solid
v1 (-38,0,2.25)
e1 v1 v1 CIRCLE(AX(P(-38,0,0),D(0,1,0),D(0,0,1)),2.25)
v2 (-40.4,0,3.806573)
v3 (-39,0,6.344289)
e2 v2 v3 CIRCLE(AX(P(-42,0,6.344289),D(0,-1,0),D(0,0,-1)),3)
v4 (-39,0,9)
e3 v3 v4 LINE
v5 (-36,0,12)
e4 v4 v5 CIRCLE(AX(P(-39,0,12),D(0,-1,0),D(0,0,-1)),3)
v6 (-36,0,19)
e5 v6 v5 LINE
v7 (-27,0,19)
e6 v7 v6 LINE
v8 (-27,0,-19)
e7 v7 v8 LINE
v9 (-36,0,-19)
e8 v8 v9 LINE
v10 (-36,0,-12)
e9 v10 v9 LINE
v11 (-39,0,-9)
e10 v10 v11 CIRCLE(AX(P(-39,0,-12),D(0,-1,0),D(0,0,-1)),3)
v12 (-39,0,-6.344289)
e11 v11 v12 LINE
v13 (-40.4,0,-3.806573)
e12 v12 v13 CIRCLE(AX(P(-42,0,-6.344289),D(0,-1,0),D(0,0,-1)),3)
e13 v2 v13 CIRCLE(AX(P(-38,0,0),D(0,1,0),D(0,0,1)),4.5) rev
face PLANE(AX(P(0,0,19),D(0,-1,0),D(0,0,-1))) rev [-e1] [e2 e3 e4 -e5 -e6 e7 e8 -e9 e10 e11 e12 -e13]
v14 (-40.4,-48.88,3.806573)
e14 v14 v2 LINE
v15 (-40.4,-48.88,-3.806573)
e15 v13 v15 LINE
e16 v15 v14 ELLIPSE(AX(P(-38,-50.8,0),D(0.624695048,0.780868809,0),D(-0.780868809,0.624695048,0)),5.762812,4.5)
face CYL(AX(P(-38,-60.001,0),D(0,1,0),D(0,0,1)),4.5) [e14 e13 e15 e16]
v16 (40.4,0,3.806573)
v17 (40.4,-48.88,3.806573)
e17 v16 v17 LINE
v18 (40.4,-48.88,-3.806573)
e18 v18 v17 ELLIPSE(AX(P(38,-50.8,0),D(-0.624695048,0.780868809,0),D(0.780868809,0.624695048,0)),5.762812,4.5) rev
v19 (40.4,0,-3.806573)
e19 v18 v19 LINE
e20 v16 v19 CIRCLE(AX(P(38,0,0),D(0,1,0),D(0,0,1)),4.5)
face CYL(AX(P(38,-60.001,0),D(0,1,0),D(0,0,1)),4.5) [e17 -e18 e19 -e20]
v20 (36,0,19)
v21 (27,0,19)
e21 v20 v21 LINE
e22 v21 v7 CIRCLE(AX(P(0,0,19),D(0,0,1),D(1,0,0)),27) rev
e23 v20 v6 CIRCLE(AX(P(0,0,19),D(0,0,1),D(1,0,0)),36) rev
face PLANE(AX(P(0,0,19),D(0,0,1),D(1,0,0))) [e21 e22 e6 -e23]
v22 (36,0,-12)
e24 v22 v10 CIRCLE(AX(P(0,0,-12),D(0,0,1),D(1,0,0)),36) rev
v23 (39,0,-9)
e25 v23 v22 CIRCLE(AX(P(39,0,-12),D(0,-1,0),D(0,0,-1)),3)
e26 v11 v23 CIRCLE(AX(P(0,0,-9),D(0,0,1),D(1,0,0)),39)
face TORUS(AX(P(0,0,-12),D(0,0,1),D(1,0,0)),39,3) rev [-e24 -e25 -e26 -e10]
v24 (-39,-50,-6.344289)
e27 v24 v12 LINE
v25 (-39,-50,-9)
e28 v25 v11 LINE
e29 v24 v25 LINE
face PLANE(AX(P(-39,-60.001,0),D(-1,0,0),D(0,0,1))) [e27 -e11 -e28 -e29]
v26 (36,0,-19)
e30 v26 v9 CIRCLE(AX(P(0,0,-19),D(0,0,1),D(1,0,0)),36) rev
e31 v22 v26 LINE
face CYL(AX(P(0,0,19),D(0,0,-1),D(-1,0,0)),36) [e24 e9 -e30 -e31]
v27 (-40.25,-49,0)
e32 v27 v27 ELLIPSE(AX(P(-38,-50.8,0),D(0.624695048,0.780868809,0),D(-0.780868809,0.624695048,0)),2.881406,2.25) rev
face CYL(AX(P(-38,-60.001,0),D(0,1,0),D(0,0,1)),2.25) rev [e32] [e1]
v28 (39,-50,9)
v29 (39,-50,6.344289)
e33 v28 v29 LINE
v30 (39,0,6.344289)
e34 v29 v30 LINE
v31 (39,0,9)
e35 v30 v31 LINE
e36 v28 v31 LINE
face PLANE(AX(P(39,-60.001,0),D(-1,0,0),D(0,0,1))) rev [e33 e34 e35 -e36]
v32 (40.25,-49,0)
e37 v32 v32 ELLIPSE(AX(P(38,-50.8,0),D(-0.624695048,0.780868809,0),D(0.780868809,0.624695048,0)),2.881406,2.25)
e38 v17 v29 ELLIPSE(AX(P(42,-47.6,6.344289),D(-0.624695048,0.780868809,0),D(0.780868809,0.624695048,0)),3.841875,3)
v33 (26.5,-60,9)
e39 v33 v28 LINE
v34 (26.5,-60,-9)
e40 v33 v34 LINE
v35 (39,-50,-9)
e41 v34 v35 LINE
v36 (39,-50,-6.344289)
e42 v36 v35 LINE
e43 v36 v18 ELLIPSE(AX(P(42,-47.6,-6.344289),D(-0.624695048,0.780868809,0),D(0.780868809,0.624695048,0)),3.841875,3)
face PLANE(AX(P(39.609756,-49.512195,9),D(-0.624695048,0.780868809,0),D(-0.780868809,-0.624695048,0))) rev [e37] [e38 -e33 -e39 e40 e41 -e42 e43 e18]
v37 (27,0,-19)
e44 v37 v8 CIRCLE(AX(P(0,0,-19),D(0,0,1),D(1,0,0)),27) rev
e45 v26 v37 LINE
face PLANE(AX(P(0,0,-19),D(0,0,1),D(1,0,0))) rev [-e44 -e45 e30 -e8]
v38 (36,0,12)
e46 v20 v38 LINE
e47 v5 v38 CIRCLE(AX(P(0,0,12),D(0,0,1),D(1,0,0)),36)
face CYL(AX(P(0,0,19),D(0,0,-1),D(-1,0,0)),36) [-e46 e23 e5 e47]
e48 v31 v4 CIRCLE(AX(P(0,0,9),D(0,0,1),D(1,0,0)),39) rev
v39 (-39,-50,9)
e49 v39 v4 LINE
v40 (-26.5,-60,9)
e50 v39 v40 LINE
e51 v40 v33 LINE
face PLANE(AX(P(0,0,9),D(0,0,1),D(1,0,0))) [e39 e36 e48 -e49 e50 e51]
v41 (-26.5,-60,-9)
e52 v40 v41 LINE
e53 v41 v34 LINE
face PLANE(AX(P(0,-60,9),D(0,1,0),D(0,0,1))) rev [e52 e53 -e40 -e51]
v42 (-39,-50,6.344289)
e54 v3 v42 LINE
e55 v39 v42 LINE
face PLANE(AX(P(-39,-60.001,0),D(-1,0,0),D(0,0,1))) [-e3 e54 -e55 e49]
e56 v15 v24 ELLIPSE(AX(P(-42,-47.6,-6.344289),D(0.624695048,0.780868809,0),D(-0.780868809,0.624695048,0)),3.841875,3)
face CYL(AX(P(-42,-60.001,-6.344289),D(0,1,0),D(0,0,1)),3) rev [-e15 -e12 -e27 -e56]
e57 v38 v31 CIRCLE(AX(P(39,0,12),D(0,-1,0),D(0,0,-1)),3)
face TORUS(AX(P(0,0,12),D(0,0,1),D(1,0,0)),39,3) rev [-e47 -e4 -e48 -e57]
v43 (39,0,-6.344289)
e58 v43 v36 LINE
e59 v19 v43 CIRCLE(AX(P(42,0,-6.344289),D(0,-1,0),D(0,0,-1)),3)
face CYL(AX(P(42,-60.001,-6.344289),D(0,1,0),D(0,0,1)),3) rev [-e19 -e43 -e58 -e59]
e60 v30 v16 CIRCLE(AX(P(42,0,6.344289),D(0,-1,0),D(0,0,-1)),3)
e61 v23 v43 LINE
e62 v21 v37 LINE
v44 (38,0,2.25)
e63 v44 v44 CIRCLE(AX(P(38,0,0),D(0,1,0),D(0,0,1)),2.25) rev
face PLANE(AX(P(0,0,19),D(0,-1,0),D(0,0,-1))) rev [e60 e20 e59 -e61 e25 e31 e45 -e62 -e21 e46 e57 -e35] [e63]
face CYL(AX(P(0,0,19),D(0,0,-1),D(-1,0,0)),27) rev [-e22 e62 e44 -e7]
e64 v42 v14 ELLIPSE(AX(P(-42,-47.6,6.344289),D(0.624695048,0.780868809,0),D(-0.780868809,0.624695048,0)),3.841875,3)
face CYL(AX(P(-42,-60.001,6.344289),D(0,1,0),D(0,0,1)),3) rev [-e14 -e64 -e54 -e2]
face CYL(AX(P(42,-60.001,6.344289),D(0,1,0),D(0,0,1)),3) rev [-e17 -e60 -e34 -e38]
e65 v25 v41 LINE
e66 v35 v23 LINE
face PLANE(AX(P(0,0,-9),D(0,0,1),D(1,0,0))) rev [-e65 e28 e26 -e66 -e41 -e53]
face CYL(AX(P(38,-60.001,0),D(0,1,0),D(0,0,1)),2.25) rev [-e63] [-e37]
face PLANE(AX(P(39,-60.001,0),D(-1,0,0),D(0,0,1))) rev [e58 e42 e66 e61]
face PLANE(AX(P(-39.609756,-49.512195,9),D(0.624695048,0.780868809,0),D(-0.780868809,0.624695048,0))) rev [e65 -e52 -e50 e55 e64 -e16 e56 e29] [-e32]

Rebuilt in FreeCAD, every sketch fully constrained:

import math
import FreeCAD as App
import Part
import Sketcher

V = App.Vector


def edges_at(feature, points):
    """Names of the edges that pass closest to the given points."""
    edges = feature.Shape.Edges
    near = lambda p: min(range(len(edges)), key=lambda i: edges[i].distToShape(Part.Vertex(*p))[0])
    return sorted({f"Edge{near(p) + 1}" for p in points})

doc = App.newDocument("Part")
body = doc.addObject("PartDesign::Body", "Body")

# Sketch on XY plane
sketch1 = doc.addObject("Sketcher::SketchObject", "Sketch")
body.addObject(sketch1)
sketch1.AttachmentSupport = (doc.XY_Plane, [""])
sketch1.MapMode = "FlatFace"
sketch1.addGeometry([
    Part.ArcOfCircle(Part.Circle(V(0, 0, 0), V(0, 0, 1), 27), math.radians(180), math.radians(360)),
    Part.LineSegment(V(-27, 0, 0), V(-36, 0, 0)),
    Part.ArcOfCircle(Part.Circle(V(0, 0, 0), V(0, 0, 1), 36), math.radians(180), math.radians(360)),
    Part.LineSegment(V(36, 0, 0), V(27, 0, 0)),
], False)
sketch1.addConstraint([
    Sketcher.Constraint("Coincident", 0, 1, 1, 1),
    Sketcher.Constraint("Coincident", 1, 2, 2, 1),
    Sketcher.Constraint("Coincident", 2, 2, 3, 1),
    Sketcher.Constraint("Coincident", 3, 2, 0, 2),
    Sketcher.Constraint("Horizontal", 1),
    Sketcher.Constraint("Horizontal", 3),
    Sketcher.Constraint("Coincident", 0, 3, -1, 1),
    Sketcher.Constraint("Coincident", 2, 3, -1, 1),
    Sketcher.Constraint("PointOnObject", 0, 1, -1),
    Sketcher.Constraint("PointOnObject", 2, 2, -1),
    Sketcher.Constraint("Radius", 0, 27.0),
    Sketcher.Constraint("Radius", 2, 36.0),
])
pad1 = doc.addObject("PartDesign::Pad", "Pad")
body.addObject(pad1)
pad1.Profile = sketch1
pad1.Length = 38
pad1.Midplane = True

# Sketch on XY plane
sketch2 = doc.addObject("Sketcher::SketchObject", "Sketch001")
body.addObject(sketch2)
sketch2.AttachmentSupport = (doc.XY_Plane, [""])
sketch2.MapMode = "FlatFace"
sketch2.addGeometry([
    Part.LineSegment(V(-36, 0, 0), V(-52, 0, 0)),  # 0
    Part.LineSegment(V(-52, 0, 0), V(-52, -40, 0)),  # 1
    Part.LineSegment(V(-52, -40, 0), V(-26, -60, 0)),  # 2
    Part.LineSegment(V(-26, -60, 0), V(26, -60, 0)),  # 3
    Part.LineSegment(V(26, -60, 0), V(52, -40, 0)),  # 4
    Part.LineSegment(V(52, -40, 0), V(52, 0, 0)),  # 5
    Part.LineSegment(V(52, 0, 0), V(36, 0, 0)),  # 6
    Part.ArcOfCircle(Part.Circle(V(0, 0, 0), V(0, 0, 1), 36), math.radians(180), math.radians(360)),  # 7
], False)
sketch2.addConstraint([
    Sketcher.Constraint("Coincident", 0, 2, 1, 1),
    Sketcher.Constraint("Coincident", 1, 2, 2, 1),
    Sketcher.Constraint("Coincident", 2, 2, 3, 1),
    Sketcher.Constraint("Coincident", 3, 2, 4, 1),
    Sketcher.Constraint("Coincident", 4, 2, 5, 1),
    Sketcher.Constraint("Coincident", 5, 2, 6, 1),
    Sketcher.Constraint("Coincident", 6, 2, 7, 2),
    Sketcher.Constraint("Coincident", 7, 1, 0, 1),
    Sketcher.Constraint("Horizontal", 0),
    Sketcher.Constraint("Vertical", 1),
    Sketcher.Constraint("Horizontal", 3),
    Sketcher.Constraint("Vertical", 5),
    Sketcher.Constraint("Horizontal", 6),
    Sketcher.Constraint("Coincident", 7, 3, -1, 1),
    Sketcher.Constraint("Symmetric", 0, 2, 5, 2, -1, 1),
    Sketcher.Constraint("PointOnObject", 0, 2, -1),
    Sketcher.Constraint("Horizontal", 1, 2, 4, 2),
    Sketcher.Constraint("Equal", 2, 4),
    Sketcher.Constraint("Radius", 7, 36.0),
    Sketcher.Constraint("DistanceX", 3, 1, 3, 2, 53.0),
    Sketcher.Constraint("DistanceY", 1, 2, 1, 1, 40.0),
    Sketcher.Constraint("DistanceX", 0, 2, 0, 1, 15.5),
    Sketcher.Constraint("DistanceY", 2, 2, -1, 1, 60.0),
])
pad2 = doc.addObject("PartDesign::Pad", "Pad001")
body.addObject(pad2)
pad2.Profile = sketch2
pad2.Length = 18
pad2.Midplane = True
doc.recompute()

fillet = doc.addObject("PartDesign::Fillet", "Fillet")
body.addObject(fillet)
fillet.Base = (pad2, edges_at(pad2, [(0, -36, -9), (0, -36, 9)]))
fillet.Radius = 3

# Sketch on XZ plane
sketch3 = doc.addObject("Sketcher::SketchObject", "Sketch002")
body.addObject(sketch3)
sketch3.AttachmentSupport = (doc.XZ_Plane, [""])
sketch3.MapMode = "FlatFace"
sketch3.addGeometry([
    Part.LineSegment(V(-39, -4.4, 0), V(-39, -9, 0)),  # 0
    Part.LineSegment(V(-39, -9, 0), V(-51.5, -9, 0)),  # 1
    Part.LineSegment(V(-51.5, -9, 0), V(-51.5, 9, 0)),  # 2
    Part.LineSegment(V(-51.5, 9, 0), V(-39, 9, 0)),  # 3
    Part.LineSegment(V(-39, 9, 0), V(-39, 4.4, 0)),  # 4
    Part.ArcOfCircle(Part.Circle(V(-38, 0, 0), V(0, 0, 1), 4.5), math.radians(103), math.radians(257)),  # 5
], False)
sketch3.addConstraint([
    Sketcher.Constraint("Coincident", 0, 2, 1, 1),
    Sketcher.Constraint("Coincident", 1, 2, 2, 1),
    Sketcher.Constraint("Coincident", 2, 2, 3, 1),
    Sketcher.Constraint("Coincident", 3, 2, 4, 1),
    Sketcher.Constraint("Coincident", 4, 2, 5, 1),
    Sketcher.Constraint("Coincident", 5, 2, 0, 1),
    Sketcher.Constraint("Vertical", 0),
    Sketcher.Constraint("Horizontal", 1),
    Sketcher.Constraint("Vertical", 2),
    Sketcher.Constraint("Horizontal", 3),
    Sketcher.Constraint("Vertical", 4),
    Sketcher.Constraint("Symmetric", 0, 2, 3, 2, -1),
    Sketcher.Constraint("PointOnObject", 5, 3, -1),
    Sketcher.Constraint("Radius", 5, 4.5),
    Sketcher.Constraint("DistanceY", 2, 1, 2, 2, 18.0),
    Sketcher.Constraint("DistanceX", 1, 2, 1, 1, 12.5),
    Sketcher.Constraint("DistanceX", 5, 3, -1, 1, 38.0),
    Sketcher.Constraint("DistanceX", 0, 2, -1, 1, 39.0),
])
pocket1 = doc.addObject("PartDesign::Pocket", "Pocket")
body.addObject(pocket1)
pocket1.Profile = sketch3
pocket1.Type = "UpToFirst"
pocket1.Reversed = True

# Sketch on XZ plane
sketch4 = doc.addObject("Sketcher::SketchObject", "Sketch003")
body.addObject(sketch4)
sketch4.AttachmentSupport = (doc.XZ_Plane, [""])
sketch4.MapMode = "FlatFace"
sketch4.addGeometry([
    Part.LineSegment(V(51.5, -9, 0), V(39, -9, 0)),  # 0
    Part.LineSegment(V(39, -9, 0), V(39, -4.4, 0)),  # 1
    Part.ArcOfCircle(Part.Circle(V(38, 0, 0), V(0, 0, 1), 4.5), math.radians(-77), math.radians(77)),  # 2
    Part.LineSegment(V(39, 4.4, 0), V(39, 9, 0)),  # 3
    Part.LineSegment(V(39, 9, 0), V(51.5, 9, 0)),  # 4
    Part.LineSegment(V(51.5, 9, 0), V(51.5, -9, 0)),  # 5
], False)
sketch4.addConstraint([
    Sketcher.Constraint("Coincident", 0, 2, 1, 1),
    Sketcher.Constraint("Coincident", 1, 2, 2, 1),
    Sketcher.Constraint("Coincident", 2, 2, 3, 1),
    Sketcher.Constraint("Coincident", 3, 2, 4, 1),
    Sketcher.Constraint("Coincident", 4, 2, 5, 1),
    Sketcher.Constraint("Coincident", 5, 2, 0, 1),
    Sketcher.Constraint("Horizontal", 0),
    Sketcher.Constraint("Vertical", 1),
    Sketcher.Constraint("Vertical", 3),
    Sketcher.Constraint("Horizontal", 4),
    Sketcher.Constraint("Vertical", 5),
    Sketcher.Constraint("Symmetric", 1, 2, 2, 2, -1),
    Sketcher.Constraint("Equal", 1, 3),
    Sketcher.Constraint("Radius", 2, 4.5),
    Sketcher.Constraint("DistanceY", 5, 2, 5, 1, 18.0),
    Sketcher.Constraint("DistanceX", 0, 2, 0, 1, 12.5),
    Sketcher.Constraint("DistanceX", -1, 1, 2, 3, 38.0),
    Sketcher.Constraint("DistanceX", -1, 1, 0, 2, 39.0),
])
pocket2 = doc.addObject("PartDesign::Pocket", "Pocket001")
body.addObject(pocket2)
pocket2.Profile = sketch4
pocket2.Type = "UpToFirst"
pocket2.Reversed = True

# Sketch on XZ plane
sketch5 = doc.addObject("Sketcher::SketchObject", "Sketch004")
body.addObject(sketch5)
sketch5.AttachmentSupport = (doc.XZ_Plane, [""])
sketch5.MapMode = "FlatFace"
sketch5.addGeometry([
    Part.ArcOfCircle(Part.Circle(V(38, 0, 0), V(0, 0, 1), 2.2), math.radians(-64), math.radians(0)),
    Part.LineSegment(V(39, -2, 0), V(39, 2, 0)),
    Part.ArcOfCircle(Part.Circle(V(38, 0, 0), V(0, 0, 1), 2.2), math.radians(0), math.radians(64)),
], False)
sketch5.addConstraint([
    Sketcher.Constraint("Coincident", 0, 1, 1, 1),
    Sketcher.Constraint("Coincident", 1, 2, 2, 2),
    Sketcher.Constraint("Tangent", 2, 1, 0, 2),
    Sketcher.Constraint("Vertical", 1),
    Sketcher.Constraint("Equal", 0, 2),
    Sketcher.Constraint("PointOnObject", 0, 3, -1),
    Sketcher.Constraint("PointOnObject", 2, 1, -1),
    Sketcher.Constraint("Radius", 0, 2.25),
    Sketcher.Constraint("DistanceX", -1, 1, 0, 3, 38.0),
    Sketcher.Constraint("DistanceX", -1, 1, 0, 1, 39.0),
])
pocket3 = doc.addObject("PartDesign::Pocket", "Pocket002")
body.addObject(pocket3)
pocket3.Profile = sketch5
pocket3.Type = "UpToFirst"
pocket3.Reversed = True

# Sketch on XZ plane
sketch6 = doc.addObject("Sketcher::SketchObject", "Sketch005")
body.addObject(sketch6)
sketch6.AttachmentSupport = (doc.XZ_Plane, [""])
sketch6.MapMode = "FlatFace"
sketch6.addGeometry([
    Part.LineSegment(V(39, 2, 0), V(39, -2, 0)),
    Part.ArcOfCircle(Part.Circle(V(38, 0, 0), V(0, 0, 1), 2.2), math.radians(64), math.radians(296)),
], False)
sketch6.addConstraint([
    Sketcher.Constraint("Coincident", 0, 1, 1, 1),
    Sketcher.Constraint("Coincident", 1, 2, 0, 2),
    Sketcher.Constraint("Vertical", 0),
    Sketcher.Constraint("PointOnObject", 1, 3, -1),
    Sketcher.Constraint("Radius", 1, 2.25),
    Sketcher.Constraint("DistanceX", -1, 1, 1, 3, 38.0),
    Sketcher.Constraint("DistanceX", -1, 1, 0, 1, 39.0),
])
pocket4 = doc.addObject("PartDesign::Pocket", "Pocket003")
body.addObject(pocket4)
pocket4.Profile = sketch6
pocket4.Type = "UpToFirst"
pocket4.Reversed = True

# Sketch on XZ plane
sketch7 = doc.addObject("Sketcher::SketchObject", "Sketch006")
body.addObject(sketch7)
sketch7.AttachmentSupport = (doc.XZ_Plane, [""])
sketch7.MapMode = "FlatFace"
sketch7.addGeometry([
    Part.ArcOfCircle(Part.Circle(V(-38, 0, 0), V(0, 0, 1), 2.2), math.radians(-116), math.radians(0)),
    Part.LineSegment(V(-39, -2, 0), V(-39, 2, 0)),
    Part.ArcOfCircle(Part.Circle(V(-38, 0, 0), V(0, 0, 1), 2.2), math.radians(0), math.radians(116)),
], False)
sketch7.addConstraint([
    Sketcher.Constraint("Coincident", 0, 1, 1, 1),
    Sketcher.Constraint("Coincident", 1, 2, 2, 2),
    Sketcher.Constraint("Tangent", 2, 1, 0, 2),
    Sketcher.Constraint("Vertical", 1),
    Sketcher.Constraint("Equal", 0, 2),
    Sketcher.Constraint("PointOnObject", 0, 3, -1),
    Sketcher.Constraint("PointOnObject", 2, 1, -1),
    Sketcher.Constraint("Radius", 0, 2.25),
    Sketcher.Constraint("DistanceX", 0, 3, -1, 1, 38.0),
    Sketcher.Constraint("DistanceX", 0, 1, -1, 1, 39.0),
])
pocket5 = doc.addObject("PartDesign::Pocket", "Pocket004")
body.addObject(pocket5)
pocket5.Profile = sketch7
pocket5.Type = "UpToFirst"
pocket5.Reversed = True

# Sketch on XZ plane
sketch8 = doc.addObject("Sketcher::SketchObject", "Sketch007")
body.addObject(sketch8)
sketch8.AttachmentSupport = (doc.XZ_Plane, [""])
sketch8.MapMode = "FlatFace"
sketch8.addGeometry([
    Part.LineSegment(V(-39, 2, 0), V(-39, -2, 0)),
    Part.ArcOfCircle(Part.Circle(V(-38, 0, 0), V(0, 0, 1), 2.2), math.radians(116), math.radians(244)),
], False)
sketch8.addConstraint([
    Sketcher.Constraint("Coincident", 0, 1, 1, 1),
    Sketcher.Constraint("Coincident", 1, 2, 0, 2),
    Sketcher.Constraint("Vertical", 0),
    Sketcher.Constraint("PointOnObject", 1, 3, -1),
    Sketcher.Constraint("Radius", 1, 2.25),
    Sketcher.Constraint("DistanceX", 1, 3, -1, 1, 38.0),
    Sketcher.Constraint("DistanceX", 0, 1, -1, 1, 39.0),
])
pocket6 = doc.addObject("PartDesign::Pocket", "Pocket005")
body.addObject(pocket6)
pocket6.Profile = sketch8
pocket6.Type = "UpToFirst"
pocket6.Reversed = True

# Sketch on XZ plane
sketch9 = doc.addObject("Sketcher::SketchObject", "Sketch008")
body.addObject(sketch9)
sketch9.AttachmentSupport = (doc.XZ_Plane, [""])
sketch9.MapMode = "FlatFace"
sketch9.addGeometry([
    Part.ArcOfCircle(Part.Circle(V(-38, 0, 0), V(0, 0, 1), 2.2), math.radians(-116), math.radians(0)),
    Part.LineSegment(V(-39, -2, 0), V(-39, 2, 0)),
    Part.ArcOfCircle(Part.Circle(V(-38, 0, 0), V(0, 0, 1), 2.2), math.radians(0), math.radians(116)),
], False)
sketch9.addConstraint([
    Sketcher.Constraint("Coincident", 0, 1, 1, 1),
    Sketcher.Constraint("Coincident", 1, 2, 2, 2),
    Sketcher.Constraint("Tangent", 2, 1, 0, 2),
    Sketcher.Constraint("Vertical", 1),
    Sketcher.Constraint("Equal", 0, 2),
    Sketcher.Constraint("PointOnObject", 0, 3, -1),
    Sketcher.Constraint("PointOnObject", 2, 1, -1),
    Sketcher.Constraint("Radius", 0, 2.25),
    Sketcher.Constraint("DistanceX", 0, 3, -1, 1, 38.0),
    Sketcher.Constraint("DistanceX", 0, 1, -1, 1, 39.0),
])
pocket7 = doc.addObject("PartDesign::Pocket", "Pocket006")
body.addObject(pocket7)
pocket7.Profile = sketch9
pocket7.Length = 52.6
pocket7.Reversed = True

# Sketch on XZ plane
sketch10 = doc.addObject("Sketcher::SketchObject", "Sketch009")
body.addObject(sketch10)
sketch10.AttachmentSupport = (doc.XZ_Plane, [""])
sketch10.MapMode = "FlatFace"
sketch10.addGeometry([
    Part.LineSegment(V(-39, 2, 0), V(-39, -2, 0)),
    Part.ArcOfCircle(Part.Circle(V(-38, 0, 0), V(0, 0, 1), 2.2), math.radians(116), math.radians(244)),
], False)
sketch10.addConstraint([
    Sketcher.Constraint("Coincident", 0, 1, 1, 1),
    Sketcher.Constraint("Coincident", 1, 2, 0, 2),
    Sketcher.Constraint("Vertical", 0),
    Sketcher.Constraint("PointOnObject", 1, 3, -1),
    Sketcher.Constraint("Radius", 1, 2.25),
    Sketcher.Constraint("DistanceX", 1, 3, -1, 1, 38.0),
    Sketcher.Constraint("DistanceX", 0, 1, -1, 1, 39.0),
])
pocket8 = doc.addObject("PartDesign::Pocket", "Pocket007")
body.addObject(pocket8)
pocket8.Profile = sketch10
pocket8.Length = 50
pocket8.Reversed = True

# Sketch on XZ plane
sketch11 = doc.addObject("Sketcher::SketchObject", "Sketch010")
body.addObject(sketch11)
sketch11.AttachmentSupport = (doc.XZ_Plane, [""])
sketch11.MapMode = "FlatFace"
sketch11.addGeometry([
    Part.ArcOfCircle(Part.Circle(V(38, 0, 0), V(0, 0, 1), 2.2), math.radians(-64), math.radians(0)),
    Part.LineSegment(V(39, -2, 0), V(39, 2, 0)),
    Part.ArcOfCircle(Part.Circle(V(38, 0, 0), V(0, 0, 1), 2.2), math.radians(0), math.radians(64)),
], False)
sketch11.addConstraint([
    Sketcher.Constraint("Coincident", 0, 1, 1, 1),
    Sketcher.Constraint("Coincident", 1, 2, 2, 2),
    Sketcher.Constraint("Tangent", 2, 1, 0, 2),
    Sketcher.Constraint("Vertical", 1),
    Sketcher.Constraint("Equal", 0, 2),
    Sketcher.Constraint("PointOnObject", 0, 3, -1),
    Sketcher.Constraint("PointOnObject", 2, 1, -1),
    Sketcher.Constraint("Radius", 0, 2.25),
    Sketcher.Constraint("DistanceX", -1, 1, 0, 3, 38.0),
    Sketcher.Constraint("DistanceX", -1, 1, 0, 1, 39.0),
])
pocket9 = doc.addObject("PartDesign::Pocket", "Pocket008")
body.addObject(pocket9)
pocket9.Profile = sketch11
pocket9.Length = 50
pocket9.Reversed = True

# Sketch on XZ plane
sketch12 = doc.addObject("Sketcher::SketchObject", "Sketch011")
body.addObject(sketch12)
sketch12.AttachmentSupport = (doc.XZ_Plane, [""])
sketch12.MapMode = "FlatFace"
sketch12.addGeometry([
    Part.LineSegment(V(39, 2, 0), V(39, -2, 0)),
    Part.ArcOfCircle(Part.Circle(V(38, 0, 0), V(0, 0, 1), 2.2), math.radians(64), math.radians(296)),
], False)
sketch12.addConstraint([
    Sketcher.Constraint("Coincident", 0, 1, 1, 1),
    Sketcher.Constraint("Coincident", 1, 2, 0, 2),
    Sketcher.Constraint("Vertical", 0),
    Sketcher.Constraint("PointOnObject", 1, 3, -1),
    Sketcher.Constraint("Radius", 1, 2.25),
    Sketcher.Constraint("DistanceX", -1, 1, 1, 3, 38.0),
    Sketcher.Constraint("DistanceX", -1, 1, 0, 1, 39.0),
])
pocket10 = doc.addObject("PartDesign::Pocket", "Pocket009")
body.addObject(pocket10)
pocket10.Profile = sketch12
pocket10.Length = 50
pocket10.Reversed = True
doc.recompute()

fillet2 = doc.addObject("PartDesign::Fillet", "Fillet001")
body.addObject(fillet2)
fillet2.Base = (pocket10, edges_at(pocket10, [
    (-39, -25, 4.387),
    (-39, -25, -4.387),
    (39, -25, -4.387),
    (39, -25, 4.387),
]))
fillet2.Radius = 3

doc.recompute()
